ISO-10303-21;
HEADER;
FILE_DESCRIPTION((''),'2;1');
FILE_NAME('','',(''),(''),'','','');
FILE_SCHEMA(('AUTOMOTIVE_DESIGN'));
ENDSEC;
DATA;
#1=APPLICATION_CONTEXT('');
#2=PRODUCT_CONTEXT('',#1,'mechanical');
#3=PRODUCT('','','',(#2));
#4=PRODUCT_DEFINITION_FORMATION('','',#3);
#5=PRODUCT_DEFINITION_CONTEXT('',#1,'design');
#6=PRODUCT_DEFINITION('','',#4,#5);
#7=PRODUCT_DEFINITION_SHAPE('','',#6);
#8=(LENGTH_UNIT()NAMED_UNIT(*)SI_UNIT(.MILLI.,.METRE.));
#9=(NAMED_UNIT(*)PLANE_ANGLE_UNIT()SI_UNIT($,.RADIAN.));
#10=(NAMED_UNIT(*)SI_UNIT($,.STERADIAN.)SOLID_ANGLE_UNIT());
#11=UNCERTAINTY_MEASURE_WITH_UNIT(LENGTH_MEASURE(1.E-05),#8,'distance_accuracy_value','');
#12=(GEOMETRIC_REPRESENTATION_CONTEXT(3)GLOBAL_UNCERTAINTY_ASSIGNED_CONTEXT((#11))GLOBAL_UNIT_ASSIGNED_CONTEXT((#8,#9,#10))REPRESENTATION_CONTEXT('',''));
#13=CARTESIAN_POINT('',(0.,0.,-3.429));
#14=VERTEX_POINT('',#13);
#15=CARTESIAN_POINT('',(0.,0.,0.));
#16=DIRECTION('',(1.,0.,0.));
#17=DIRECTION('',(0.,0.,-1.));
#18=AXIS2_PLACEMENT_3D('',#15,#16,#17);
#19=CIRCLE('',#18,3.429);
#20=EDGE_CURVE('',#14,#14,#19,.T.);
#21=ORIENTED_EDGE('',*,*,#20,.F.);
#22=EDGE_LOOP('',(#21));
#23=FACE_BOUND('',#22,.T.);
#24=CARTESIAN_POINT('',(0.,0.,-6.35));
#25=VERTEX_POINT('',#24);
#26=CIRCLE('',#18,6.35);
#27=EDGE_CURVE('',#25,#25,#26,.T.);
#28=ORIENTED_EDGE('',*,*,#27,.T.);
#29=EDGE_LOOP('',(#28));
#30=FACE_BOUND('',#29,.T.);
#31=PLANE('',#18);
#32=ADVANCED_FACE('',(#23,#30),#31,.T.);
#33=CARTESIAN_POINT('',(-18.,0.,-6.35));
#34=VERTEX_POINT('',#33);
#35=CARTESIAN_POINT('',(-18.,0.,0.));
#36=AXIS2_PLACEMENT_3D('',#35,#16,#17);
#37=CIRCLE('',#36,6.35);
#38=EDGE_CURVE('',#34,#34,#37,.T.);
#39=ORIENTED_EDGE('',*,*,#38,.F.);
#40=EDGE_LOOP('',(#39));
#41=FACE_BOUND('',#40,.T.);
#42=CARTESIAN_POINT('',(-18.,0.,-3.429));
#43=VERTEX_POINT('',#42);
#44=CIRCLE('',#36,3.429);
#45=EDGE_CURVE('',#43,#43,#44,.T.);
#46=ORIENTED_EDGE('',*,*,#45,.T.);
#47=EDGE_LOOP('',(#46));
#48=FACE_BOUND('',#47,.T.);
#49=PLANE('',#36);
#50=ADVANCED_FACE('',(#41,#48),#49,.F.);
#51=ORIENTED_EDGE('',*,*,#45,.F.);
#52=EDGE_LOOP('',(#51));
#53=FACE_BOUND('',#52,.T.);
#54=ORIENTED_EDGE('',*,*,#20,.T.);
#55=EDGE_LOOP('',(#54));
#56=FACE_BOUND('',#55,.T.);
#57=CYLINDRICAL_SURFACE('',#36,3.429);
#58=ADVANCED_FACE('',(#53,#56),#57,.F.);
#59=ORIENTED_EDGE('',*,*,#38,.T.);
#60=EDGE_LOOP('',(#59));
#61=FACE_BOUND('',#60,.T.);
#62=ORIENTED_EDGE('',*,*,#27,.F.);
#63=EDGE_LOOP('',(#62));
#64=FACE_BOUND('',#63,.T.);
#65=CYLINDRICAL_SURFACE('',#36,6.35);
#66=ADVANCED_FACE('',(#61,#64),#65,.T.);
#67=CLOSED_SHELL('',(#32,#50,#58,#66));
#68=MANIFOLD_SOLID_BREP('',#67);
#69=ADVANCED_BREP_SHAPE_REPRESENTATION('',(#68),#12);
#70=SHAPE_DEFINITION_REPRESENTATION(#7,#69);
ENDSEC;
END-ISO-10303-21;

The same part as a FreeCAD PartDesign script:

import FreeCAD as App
import Part
import Sketcher
Q = App.Units.Quantity

doc = App.newDocument("Part")
body = doc.addObject("PartDesign::Body", "Body")

# Sketch on YZ plane
sketch1 = doc.addObject("Sketcher::SketchObject", "Sketch")
body.addObject(sketch1)
sketch1.AttachmentSupport = (doc.YZ_Plane, [""])
sketch1.MapMode = "FlatFace"
sketch1.addGeometry([
    Part.Circle(App.Vector(0, 0, 0), App.Vector(0, 0, 1), 6.3),
    Part.Circle(App.Vector(0, 0, 0), App.Vector(0, 0, 1), 3.4),
], False)
sketch1.addConstraint([
    Sketcher.Constraint("Coincident", 0, 3, -1, 1),
    Sketcher.Constraint("Coincident", 1, 3, -1, 1),
    Sketcher.Constraint("Diameter", 0, Q("0.5 in")),
    Sketcher.Constraint("Diameter", 1, Q("0.27 in")),
])
pad1 = doc.addObject("PartDesign::Pad", "Pad")
body.addObject(pad1)
pad1.Profile = sketch1
pad1.Length = 18
pad1.Reversed = True

doc.recompute()
